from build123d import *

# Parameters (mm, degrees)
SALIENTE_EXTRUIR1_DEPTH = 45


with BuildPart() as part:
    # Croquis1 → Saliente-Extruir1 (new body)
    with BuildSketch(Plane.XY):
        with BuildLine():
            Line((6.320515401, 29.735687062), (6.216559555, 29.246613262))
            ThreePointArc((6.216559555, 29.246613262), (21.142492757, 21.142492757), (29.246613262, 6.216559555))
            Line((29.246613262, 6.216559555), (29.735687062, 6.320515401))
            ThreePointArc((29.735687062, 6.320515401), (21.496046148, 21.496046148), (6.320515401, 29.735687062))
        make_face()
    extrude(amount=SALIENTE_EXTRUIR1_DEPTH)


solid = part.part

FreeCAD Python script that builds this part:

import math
import FreeCAD as App
import Part
import Sketcher

V = App.Vector
Q = App.Units.Quantity

doc = App.newDocument("Part")
body = doc.addObject("PartDesign::Body", "Body")

# Sketch on XY plane
sketch1 = doc.addObject("Sketcher::SketchObject", "Sketch")
body.addObject(sketch1)
sketch1.AttachmentSupport = (doc.XY_Plane, [""])
sketch1.MapMode = "FlatFace"
sketch1.addGeometry([
    Part.LineSegment(V(6.320515, 29.735687, 0), V(6.21656, 29.246613, 0)),
    Part.ArcOfCircle(Part.Circle(V(0, 0, 0), V(0, 0, 1), 29.9), math.radians(12), math.radians(78)),
    Part.LineSegment(V(29.246613, 6.21656, 0), V(29.735687, 6.320515, 0)),
    Part.ArcOfCircle(Part.Circle(V(0, 0, 0), V(0, 0, 1), 30.4), math.radians(12), math.radians(78)),
], False)
sketch1.addConstraint([
    Sketcher.Constraint("Coincident", 0, 2, 1, 2),
    Sketcher.Constraint("Coincident", 1, 1, 2, 1),
    Sketcher.Constraint("Coincident", 2, 2, 3, 1),
    Sketcher.Constraint("Coincident", 3, 2, 0, 1),
    Sketcher.Constraint("Coincident", 1, 3, -1, 1),
    Sketcher.Constraint("Coincident", 3, 3, -1, 1),
    Sketcher.Constraint("Radius", 1, Q("29.9 mm")),
    Sketcher.Constraint("Radius", 3, Q("30.4 mm")),
    Sketcher.Constraint("Angle", 0, Q("-102 deg")),
    Sketcher.Constraint("Angle", 2, Q("12 deg")),
    Sketcher.Constraint("DistanceX", -1, 1, 0, 2, Q("6.21656 mm")),
    Sketcher.Constraint("DistanceY", -1, 1, 1, 1, Q("6.21656 mm")),
])
pad1 = doc.addObject("PartDesign::Pad", "Pad")
body.addObject(pad1)
pad1.Profile = sketch1
pad1.Length = 45

doc.recompute()
